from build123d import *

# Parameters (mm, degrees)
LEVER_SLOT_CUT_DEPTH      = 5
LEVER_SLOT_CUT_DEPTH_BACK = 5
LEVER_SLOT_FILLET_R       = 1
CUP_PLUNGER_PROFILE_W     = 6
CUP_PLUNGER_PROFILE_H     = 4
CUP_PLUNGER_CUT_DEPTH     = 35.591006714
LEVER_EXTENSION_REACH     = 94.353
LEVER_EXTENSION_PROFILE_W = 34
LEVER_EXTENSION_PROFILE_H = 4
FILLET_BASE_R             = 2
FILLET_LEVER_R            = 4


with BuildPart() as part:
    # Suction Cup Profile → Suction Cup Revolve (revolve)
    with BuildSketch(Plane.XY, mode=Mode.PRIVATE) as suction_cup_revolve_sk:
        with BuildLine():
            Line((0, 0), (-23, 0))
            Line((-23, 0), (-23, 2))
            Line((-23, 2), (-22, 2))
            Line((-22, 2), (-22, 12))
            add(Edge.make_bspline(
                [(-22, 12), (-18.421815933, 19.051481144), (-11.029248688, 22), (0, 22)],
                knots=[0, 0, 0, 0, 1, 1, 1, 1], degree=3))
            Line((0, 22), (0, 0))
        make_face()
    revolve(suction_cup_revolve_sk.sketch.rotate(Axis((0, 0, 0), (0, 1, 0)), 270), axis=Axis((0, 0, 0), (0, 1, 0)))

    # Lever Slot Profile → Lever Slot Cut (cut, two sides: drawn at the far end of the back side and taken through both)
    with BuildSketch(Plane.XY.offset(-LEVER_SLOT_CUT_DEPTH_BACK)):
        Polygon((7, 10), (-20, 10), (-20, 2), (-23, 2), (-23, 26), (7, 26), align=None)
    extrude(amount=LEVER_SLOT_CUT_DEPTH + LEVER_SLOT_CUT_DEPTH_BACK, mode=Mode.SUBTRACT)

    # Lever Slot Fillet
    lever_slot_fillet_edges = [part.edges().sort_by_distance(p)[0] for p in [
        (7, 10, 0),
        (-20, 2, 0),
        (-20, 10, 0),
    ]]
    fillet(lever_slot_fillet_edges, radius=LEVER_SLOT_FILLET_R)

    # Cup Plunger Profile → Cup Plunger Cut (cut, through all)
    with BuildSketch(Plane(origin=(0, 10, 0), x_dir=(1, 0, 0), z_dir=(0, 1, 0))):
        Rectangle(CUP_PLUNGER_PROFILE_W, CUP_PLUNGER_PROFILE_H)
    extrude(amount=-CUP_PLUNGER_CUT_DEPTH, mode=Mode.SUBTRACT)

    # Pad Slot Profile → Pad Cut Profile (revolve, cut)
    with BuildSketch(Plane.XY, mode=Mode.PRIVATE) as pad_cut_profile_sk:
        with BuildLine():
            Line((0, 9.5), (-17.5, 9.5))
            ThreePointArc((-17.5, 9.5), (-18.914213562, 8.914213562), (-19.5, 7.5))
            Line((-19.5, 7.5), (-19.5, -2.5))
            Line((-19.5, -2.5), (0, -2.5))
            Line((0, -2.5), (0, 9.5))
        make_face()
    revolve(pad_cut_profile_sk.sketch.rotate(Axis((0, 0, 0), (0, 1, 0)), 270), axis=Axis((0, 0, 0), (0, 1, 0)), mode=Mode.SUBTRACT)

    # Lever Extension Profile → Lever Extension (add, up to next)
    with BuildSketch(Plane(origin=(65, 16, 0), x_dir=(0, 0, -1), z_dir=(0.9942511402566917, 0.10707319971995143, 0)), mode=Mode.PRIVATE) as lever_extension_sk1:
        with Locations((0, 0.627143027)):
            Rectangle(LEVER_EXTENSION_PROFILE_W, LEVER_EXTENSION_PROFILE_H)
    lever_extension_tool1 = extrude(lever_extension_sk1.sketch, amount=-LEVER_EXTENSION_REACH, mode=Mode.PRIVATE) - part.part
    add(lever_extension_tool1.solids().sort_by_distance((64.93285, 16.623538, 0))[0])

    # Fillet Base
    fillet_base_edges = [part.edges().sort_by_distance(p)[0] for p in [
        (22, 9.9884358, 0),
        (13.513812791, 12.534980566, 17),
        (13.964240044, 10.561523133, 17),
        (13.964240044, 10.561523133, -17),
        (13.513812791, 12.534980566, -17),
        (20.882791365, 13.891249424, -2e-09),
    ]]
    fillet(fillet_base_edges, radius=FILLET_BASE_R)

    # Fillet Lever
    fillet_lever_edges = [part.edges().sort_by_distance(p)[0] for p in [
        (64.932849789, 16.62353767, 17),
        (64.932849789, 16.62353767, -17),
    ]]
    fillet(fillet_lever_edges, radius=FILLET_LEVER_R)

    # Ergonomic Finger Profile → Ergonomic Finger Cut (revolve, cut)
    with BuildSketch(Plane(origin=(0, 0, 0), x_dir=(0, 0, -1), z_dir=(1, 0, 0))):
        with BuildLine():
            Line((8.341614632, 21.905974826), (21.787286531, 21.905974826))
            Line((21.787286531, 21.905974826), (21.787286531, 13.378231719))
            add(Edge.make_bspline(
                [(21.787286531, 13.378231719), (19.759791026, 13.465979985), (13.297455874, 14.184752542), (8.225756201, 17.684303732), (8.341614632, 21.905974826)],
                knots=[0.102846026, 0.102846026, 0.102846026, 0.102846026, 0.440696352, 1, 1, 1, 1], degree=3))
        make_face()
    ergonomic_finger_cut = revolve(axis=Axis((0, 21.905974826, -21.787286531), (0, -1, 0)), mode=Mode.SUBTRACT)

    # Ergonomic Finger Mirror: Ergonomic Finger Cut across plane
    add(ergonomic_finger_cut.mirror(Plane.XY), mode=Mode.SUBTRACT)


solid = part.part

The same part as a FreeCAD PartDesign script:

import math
import FreeCAD as App
import Part
import Sketcher

V = App.Vector


def edges_at(feature, points):
    """Names of the edges that pass closest to the given points."""
    edges = feature.Shape.Edges
    near = lambda p: min(range(len(edges)), key=lambda i: edges[i].distToShape(Part.Vertex(*p))[0])
    return sorted({f"Edge{near(p) + 1}" for p in points})


def add_polygon(sketch, points):
    """Adds a closed chain of lines whose ends are joined by coincident constraints."""
    first, n = sketch.GeometryCount, len(points)
    for a, b in zip(points, points[1:] + points[:1]):
        sketch.addGeometry(Part.LineSegment(App.Vector(*a, 0), App.Vector(*b, 0)), False)
    for i in range(n):
        sketch.addConstraint(Sketcher.Constraint("Coincident", first + i, 2, first + (i + 1) % n, 1))

doc = App.newDocument("Part")
params = doc.addObject("Spreadsheet::Sheet", "Params")
for row, (alias, value) in enumerate([
    ("sketch1_width", "23 mm"),
    ("sketch1_height", "10 mm"),
    ("revolution_angle", "360 deg"),
    ("sketch2_width", "27 mm"),
    ("sketch2_width2", "30 mm"),
    ("sketch2_height", "16 mm"),
    ("sketch2_height2", "24 mm"),
    ("pocket1_length", "5 mm"),
    ("pocket1_length2", "5 mm"),
    ("fillet_radius", "1 mm"),
    ("sketch3_width", "6 mm"),
    ("sketch3_height", "4 mm"),
    ("sketch4_radius", "2 mm"),
    ("sketch4_height", "10 mm"),
    ("sketch4_width", "17.5 mm"),
    ("groove_angle", "360 deg"),
    ("sketch5_width", "34 mm"),
    ("sketch5_height", "4 mm"),
    ("fillet2_radius", "2 mm"),
    ("fillet3_radius", "4 mm"),
    ("groove2_angle", "360 deg"),
], start=1):
    params.set(f"A{row}", alias)
    params.set(f"B{row}", "=" + value)
    params.setAlias(f"B{row}", alias)

body = doc.addObject("PartDesign::Body", "Body")

# Sketch on XY plane
sketch1 = body.newObject("Sketcher::SketchObject", "Sketch")
sketch1.AttachmentSupport = (doc.getObject("XY_Plane"), [""])
sketch1.MapMode = "FlatFace"
sketch1.addGeometry([
    Part.LineSegment(V(-23, 0, 0), V(0, 0, 0)),  # 0
    Part.LineSegment(V(0, 0, 0), V(0, 22, 0)),  # 1
    Part.BSplineCurve([V(-22, 12, 0), V(-18.421816, 19.051481, 0), V(-11.029249, 22, 0), V(0, 22, 0)], [4, 4], [0, 1], False, 3, [1, 1, 1, 1], False),  # 2
    Part.LineSegment(V(-22, 12, 0), V(-22, 2, 0)),  # 3
    Part.LineSegment(V(-22, 2, 0), V(-23, 2, 0)),  # 4
    Part.LineSegment(V(-23, 2, 0), V(-23, 0, 0)),  # 5
], False)
sketch1.addConstraint([
    Sketcher.Constraint("Block", 2),
    Sketcher.Constraint("Coincident", 0, 2, 1, 1),
    Sketcher.Constraint("Coincident", 1, 2, 2, 2),
    Sketcher.Constraint("Coincident", 2, 1, 3, 1),
    Sketcher.Constraint("Coincident", 3, 2, 4, 1),
    Sketcher.Constraint("Coincident", 4, 2, 5, 1),
    Sketcher.Constraint("Coincident", 5, 2, 0, 1),
    Sketcher.Constraint("Horizontal", 0),
    Sketcher.Constraint("Vertical", 1),
    Sketcher.Constraint("Vertical", 3),
    Sketcher.Constraint("Horizontal", 4),
    Sketcher.Constraint("Vertical", 5),
    Sketcher.Constraint("PointOnObject", 5, 2, -1),
    Sketcher.Constraint("DistanceX", 0, 1, 0, 2, 23.0),
    Sketcher.Constraint("DistanceY", 3, 2, 3, 1, 10.0),
])
sketch1.setExpression("Constraints[13]", "Params.sketch1_width")
sketch1.setExpression("Constraints[14]", "Params.sketch1_height")
revolution = body.newObject("PartDesign::Revolution", "Revolution")
revolution.Profile = sketch1
revolution.ReferenceAxis = (sketch1, ["V_Axis"])
revolution.setExpression("Angle", "Params.revolution_angle")

# Sketch on XY plane
sketch2 = body.newObject("Sketcher::SketchObject", "Sketch001")
sketch2.AttachmentSupport = (doc.getObject("XY_Plane"), [""])
sketch2.MapMode = "FlatFace"
add_polygon(sketch2, [(-20, 10), (7, 10), (7, 26), (-23, 26), (-23, 2), (-20, 2)])  # lines 0-5
sketch2.addConstraint([
    Sketcher.Constraint("Horizontal", 0),
    Sketcher.Constraint("Vertical", 1),
    Sketcher.Constraint("Horizontal", 2),
    Sketcher.Constraint("Vertical", 3),
    Sketcher.Constraint("Horizontal", 4),
    Sketcher.Constraint("Vertical", 5),
    Sketcher.Constraint("DistanceX", 0, 1, 0, 2, 27.0),
    Sketcher.Constraint("DistanceX", 2, 2, 2, 1, 30.0),
    Sketcher.Constraint("DistanceY", 1, 1, 1, 2, 16.0),
    Sketcher.Constraint("DistanceY", 3, 2, 3, 1, 24.0),
    Sketcher.Constraint("DistanceX", -1, 1, 0, 2, 7.0),
    Sketcher.Constraint("DistanceY", -1, 1, 0, 2, 10.0),
])
sketch2.setExpression("Constraints[12]", "Params.sketch2_width")
sketch2.setExpression("Constraints[13]", "Params.sketch2_width2")
sketch2.setExpression("Constraints[14]", "Params.sketch2_height")
sketch2.setExpression("Constraints[15]", "Params.sketch2_height2")
pocket1 = body.newObject("PartDesign::Pocket", "Pocket")
pocket1.Profile = sketch2
pocket1.Type = "TwoLengths"
pocket1.setExpression("Length", "Params.pocket1_length")
pocket1.setExpression("Length2", "Params.pocket1_length2")
pocket1.Reversed = True
doc.recompute()

fillet = body.newObject("PartDesign::Fillet", "Fillet")
fillet.Base = (pocket1, edges_at(pocket1, [(7, 10, 0), (-20, 2, 0), (-20, 10, 0)]))
fillet.setExpression("Radius", "Params.fillet_radius")

# Sketch on XZ plane
sketch3 = body.newObject("Sketcher::SketchObject", "Sketch002")
sketch3.AttachmentSupport = (doc.getObject("XZ_Plane"), [""])
sketch3.MapMode = "FlatFace"
sketch3.AttachmentOffset = App.Placement(V(0, 0, -10), App.Rotation())
add_polygon(sketch3, [(-3, -2), (-3, 2), (3, 2), (3, -2)])  # lines 0-3
sketch3.addConstraint([
    Sketcher.Constraint("Vertical", 0),
    Sketcher.Constraint("Horizontal", 1),
    Sketcher.Constraint("Vertical", 2),
    Sketcher.Constraint("Horizontal", 3),
    Sketcher.Constraint("Symmetric", 0, 2, 2, 2, -1, 1),
    Sketcher.Constraint("DistanceX", 1, 1, 1, 2, 6.0),
    Sketcher.Constraint("DistanceY", 0, 1, 0, 2, 4.0),
])
sketch3.setExpression("Constraints[9]", "Params.sketch3_width")
sketch3.setExpression("Constraints[10]", "Params.sketch3_height")
pocket2 = body.newObject("PartDesign::Pocket", "Pocket001")
pocket2.Profile = sketch3
pocket2.Type = "ThroughAll"
pocket2.Reversed = True

# Sketch on XY plane
sketch4 = body.newObject("Sketcher::SketchObject", "Sketch003")
sketch4.AttachmentSupport = (doc.getObject("XY_Plane"), [""])
sketch4.MapMode = "FlatFace"
sketch4.addGeometry([
    Part.LineSegment(V(0, 9.5, 0), V(-17.5, 9.5, 0)),  # 0
    Part.ArcOfCircle(Part.Circle(V(-17.5, 7.5, 0), V(0, 0, 1), 2), math.radians(90), math.radians(180)),  # 1
    Part.LineSegment(V(-19.5, 7.5, 0), V(-19.5, -2.5, 0)),  # 2
    Part.LineSegment(V(-19.5, -2.5, 0), V(0, -2.5, 0)),  # 3
    Part.LineSegment(V(0, -2.5, 0), V(0, 9.5, 0)),  # 4
], False)
sketch4.addConstraint([
    Sketcher.Constraint("Tangent", 0, 2, 1, 1),
    Sketcher.Constraint("Tangent", 1, 2, 2, 1),
    Sketcher.Constraint("Coincident", 2, 2, 3, 1),
    Sketcher.Constraint("Coincident", 3, 2, 4, 1),
    Sketcher.Constraint("Coincident", 4, 2, 0, 1),
    Sketcher.Constraint("Horizontal", 0),
    Sketcher.Constraint("Vertical", 2),
    Sketcher.Constraint("Horizontal", 3),
    Sketcher.Constraint("Vertical", 4),
    Sketcher.Constraint("PointOnObject", 3, 2, -2),
    Sketcher.Constraint("Radius", 1, 2.0),
    Sketcher.Constraint("DistanceY", 2, 2, 2, 1, 10.0),
    Sketcher.Constraint("DistanceX", 0, 2, 0, 1, 17.5),
    Sketcher.Constraint("DistanceY", -1, 1, 1, 3, 7.5),
])
sketch4.setExpression("Constraints[10]", "Params.sketch4_radius")
sketch4.setExpression("Constraints[11]", "Params.sketch4_height")
sketch4.setExpression("Constraints[12]", "Params.sketch4_width")
groove = body.newObject("PartDesign::Groove", "Groove")
groove.Profile = sketch4
groove.ReferenceAxis = (sketch4, ["V_Axis"])
groove.setExpression("Angle", "Params.groove_angle")

# Sketch on an angled plane
sketch5 = body.newObject("Sketcher::SketchObject", "Sketch004")
sketch5.Placement = App.Placement(V(65, 16, 0), App.Rotation(V(0, 0, -1), V(-0.1070732, 0.99425114, 0), V(0.99425114, 0.1070732, 0), "ZXY"))
add_polygon(sketch5, [(-17, 2.6), (-17, -1.4), (17, -1.4), (17, 2.6)])  # lines 0-3
sketch5.addConstraint([
    Sketcher.Constraint("Vertical", 0),
    Sketcher.Constraint("Horizontal", 1),
    Sketcher.Constraint("Vertical", 2),
    Sketcher.Constraint("Horizontal", 3),
    Sketcher.Constraint("DistanceX", 1, 1, 1, 2, 34.0),
    Sketcher.Constraint("DistanceY", 0, 2, 0, 1, 4.0),
    Sketcher.Constraint("DistanceX", 0, 2, -1, 1, 17.0),
    Sketcher.Constraint("DistanceY", 0, 2, -1, 1, 1.372857),
])
sketch5.setExpression("Constraints[8]", "Params.sketch5_width")
sketch5.setExpression("Constraints[9]", "Params.sketch5_height")
pad1 = body.newObject("PartDesign::Pad", "Pad")
pad1.Profile = sketch5
pad1.Type = "UpToFirst"
pad1.Reversed = True
doc.recompute()

fillet2 = body.newObject("PartDesign::Fillet", "Fillet001")
fillet2.Base = (pad1, edges_at(pad1, [
    (22, 9.988, 0),
    (13.514, 12.535, 17),
    (13.964, 10.562, 17),
    (13.964, 10.562, -17),
    (13.514, 12.535, -17),
    (20.883, 13.891, 0),
]))
fillet2.setExpression("Radius", "Params.fillet2_radius")
doc.recompute()

fillet3 = body.newObject("PartDesign::Fillet", "Fillet002")
fillet3.Base = (fillet2, edges_at(fillet2, [(64.933, 16.624, 17), (64.933, 16.624, -17)]))
fillet3.setExpression("Radius", "Params.fillet3_radius")

# Sketch on YZ plane
sketch6 = body.newObject("Sketcher::SketchObject", "Sketch005")
sketch6.AttachmentSupport = (doc.getObject("YZ_Plane"), [""])
sketch6.MapMode = "FlatFace"
sketch6.addGeometry([
    Part.LineSegment(V(21.905975, -21.787287, 0), V(21.905975, -8.341615, 0)),
    Part.BSplineCurve([V(13.378232, -21.787287, 0), V(13.46598, -19.759791, 0), V(14.184753, -13.297456, 0), V(17.684304, -8.225756, 0), V(21.905975, -8.341615, 0)], [4, 1, 4], [0.102846026, 0.440696352, 1], False, 3, [1, 1, 1, 1, 1], False),
    Part.LineSegment(V(13.378232, -21.787287, 0), V(21.905975, -21.787287, 0)),
], False)
sketch6.addGeometry(Part.LineSegment(V(21.905975, -21.787287, 0), V(13.378232, -21.787287, 0)), True)  # axis
sketch6.addConstraint([
    Sketcher.Constraint("Block", 1),
    Sketcher.Constraint("Coincident", 0, 2, 1, 2),
    Sketcher.Constraint("Coincident", 1, 1, 2, 1),
    Sketcher.Constraint("Coincident", 2, 2, 0, 1),
    Sketcher.Constraint("Vertical", 0),
    Sketcher.Constraint("Horizontal", 2),
    Sketcher.Constraint("Horizontal", 3),
    Sketcher.Constraint("Coincident", 3, 1, 2, 2),
    Sketcher.Constraint("Equal", 2, 3),
])
groove2 = body.newObject("PartDesign::Groove", "Groove001")
groove2.Profile = sketch6
groove2.ReferenceAxis = (sketch6, ["Axis0"])
groove2.setExpression("Angle", "Params.groove2_angle")
doc.recompute()

mirrored = body.newObject("PartDesign::Mirrored", "Mirrored")
mirrored.Originals = [groove2]
mirrored.MirrorPlane = (doc.getObject("XY_Plane"), [""])
body.Tip = mirrored

doc.recompute()
